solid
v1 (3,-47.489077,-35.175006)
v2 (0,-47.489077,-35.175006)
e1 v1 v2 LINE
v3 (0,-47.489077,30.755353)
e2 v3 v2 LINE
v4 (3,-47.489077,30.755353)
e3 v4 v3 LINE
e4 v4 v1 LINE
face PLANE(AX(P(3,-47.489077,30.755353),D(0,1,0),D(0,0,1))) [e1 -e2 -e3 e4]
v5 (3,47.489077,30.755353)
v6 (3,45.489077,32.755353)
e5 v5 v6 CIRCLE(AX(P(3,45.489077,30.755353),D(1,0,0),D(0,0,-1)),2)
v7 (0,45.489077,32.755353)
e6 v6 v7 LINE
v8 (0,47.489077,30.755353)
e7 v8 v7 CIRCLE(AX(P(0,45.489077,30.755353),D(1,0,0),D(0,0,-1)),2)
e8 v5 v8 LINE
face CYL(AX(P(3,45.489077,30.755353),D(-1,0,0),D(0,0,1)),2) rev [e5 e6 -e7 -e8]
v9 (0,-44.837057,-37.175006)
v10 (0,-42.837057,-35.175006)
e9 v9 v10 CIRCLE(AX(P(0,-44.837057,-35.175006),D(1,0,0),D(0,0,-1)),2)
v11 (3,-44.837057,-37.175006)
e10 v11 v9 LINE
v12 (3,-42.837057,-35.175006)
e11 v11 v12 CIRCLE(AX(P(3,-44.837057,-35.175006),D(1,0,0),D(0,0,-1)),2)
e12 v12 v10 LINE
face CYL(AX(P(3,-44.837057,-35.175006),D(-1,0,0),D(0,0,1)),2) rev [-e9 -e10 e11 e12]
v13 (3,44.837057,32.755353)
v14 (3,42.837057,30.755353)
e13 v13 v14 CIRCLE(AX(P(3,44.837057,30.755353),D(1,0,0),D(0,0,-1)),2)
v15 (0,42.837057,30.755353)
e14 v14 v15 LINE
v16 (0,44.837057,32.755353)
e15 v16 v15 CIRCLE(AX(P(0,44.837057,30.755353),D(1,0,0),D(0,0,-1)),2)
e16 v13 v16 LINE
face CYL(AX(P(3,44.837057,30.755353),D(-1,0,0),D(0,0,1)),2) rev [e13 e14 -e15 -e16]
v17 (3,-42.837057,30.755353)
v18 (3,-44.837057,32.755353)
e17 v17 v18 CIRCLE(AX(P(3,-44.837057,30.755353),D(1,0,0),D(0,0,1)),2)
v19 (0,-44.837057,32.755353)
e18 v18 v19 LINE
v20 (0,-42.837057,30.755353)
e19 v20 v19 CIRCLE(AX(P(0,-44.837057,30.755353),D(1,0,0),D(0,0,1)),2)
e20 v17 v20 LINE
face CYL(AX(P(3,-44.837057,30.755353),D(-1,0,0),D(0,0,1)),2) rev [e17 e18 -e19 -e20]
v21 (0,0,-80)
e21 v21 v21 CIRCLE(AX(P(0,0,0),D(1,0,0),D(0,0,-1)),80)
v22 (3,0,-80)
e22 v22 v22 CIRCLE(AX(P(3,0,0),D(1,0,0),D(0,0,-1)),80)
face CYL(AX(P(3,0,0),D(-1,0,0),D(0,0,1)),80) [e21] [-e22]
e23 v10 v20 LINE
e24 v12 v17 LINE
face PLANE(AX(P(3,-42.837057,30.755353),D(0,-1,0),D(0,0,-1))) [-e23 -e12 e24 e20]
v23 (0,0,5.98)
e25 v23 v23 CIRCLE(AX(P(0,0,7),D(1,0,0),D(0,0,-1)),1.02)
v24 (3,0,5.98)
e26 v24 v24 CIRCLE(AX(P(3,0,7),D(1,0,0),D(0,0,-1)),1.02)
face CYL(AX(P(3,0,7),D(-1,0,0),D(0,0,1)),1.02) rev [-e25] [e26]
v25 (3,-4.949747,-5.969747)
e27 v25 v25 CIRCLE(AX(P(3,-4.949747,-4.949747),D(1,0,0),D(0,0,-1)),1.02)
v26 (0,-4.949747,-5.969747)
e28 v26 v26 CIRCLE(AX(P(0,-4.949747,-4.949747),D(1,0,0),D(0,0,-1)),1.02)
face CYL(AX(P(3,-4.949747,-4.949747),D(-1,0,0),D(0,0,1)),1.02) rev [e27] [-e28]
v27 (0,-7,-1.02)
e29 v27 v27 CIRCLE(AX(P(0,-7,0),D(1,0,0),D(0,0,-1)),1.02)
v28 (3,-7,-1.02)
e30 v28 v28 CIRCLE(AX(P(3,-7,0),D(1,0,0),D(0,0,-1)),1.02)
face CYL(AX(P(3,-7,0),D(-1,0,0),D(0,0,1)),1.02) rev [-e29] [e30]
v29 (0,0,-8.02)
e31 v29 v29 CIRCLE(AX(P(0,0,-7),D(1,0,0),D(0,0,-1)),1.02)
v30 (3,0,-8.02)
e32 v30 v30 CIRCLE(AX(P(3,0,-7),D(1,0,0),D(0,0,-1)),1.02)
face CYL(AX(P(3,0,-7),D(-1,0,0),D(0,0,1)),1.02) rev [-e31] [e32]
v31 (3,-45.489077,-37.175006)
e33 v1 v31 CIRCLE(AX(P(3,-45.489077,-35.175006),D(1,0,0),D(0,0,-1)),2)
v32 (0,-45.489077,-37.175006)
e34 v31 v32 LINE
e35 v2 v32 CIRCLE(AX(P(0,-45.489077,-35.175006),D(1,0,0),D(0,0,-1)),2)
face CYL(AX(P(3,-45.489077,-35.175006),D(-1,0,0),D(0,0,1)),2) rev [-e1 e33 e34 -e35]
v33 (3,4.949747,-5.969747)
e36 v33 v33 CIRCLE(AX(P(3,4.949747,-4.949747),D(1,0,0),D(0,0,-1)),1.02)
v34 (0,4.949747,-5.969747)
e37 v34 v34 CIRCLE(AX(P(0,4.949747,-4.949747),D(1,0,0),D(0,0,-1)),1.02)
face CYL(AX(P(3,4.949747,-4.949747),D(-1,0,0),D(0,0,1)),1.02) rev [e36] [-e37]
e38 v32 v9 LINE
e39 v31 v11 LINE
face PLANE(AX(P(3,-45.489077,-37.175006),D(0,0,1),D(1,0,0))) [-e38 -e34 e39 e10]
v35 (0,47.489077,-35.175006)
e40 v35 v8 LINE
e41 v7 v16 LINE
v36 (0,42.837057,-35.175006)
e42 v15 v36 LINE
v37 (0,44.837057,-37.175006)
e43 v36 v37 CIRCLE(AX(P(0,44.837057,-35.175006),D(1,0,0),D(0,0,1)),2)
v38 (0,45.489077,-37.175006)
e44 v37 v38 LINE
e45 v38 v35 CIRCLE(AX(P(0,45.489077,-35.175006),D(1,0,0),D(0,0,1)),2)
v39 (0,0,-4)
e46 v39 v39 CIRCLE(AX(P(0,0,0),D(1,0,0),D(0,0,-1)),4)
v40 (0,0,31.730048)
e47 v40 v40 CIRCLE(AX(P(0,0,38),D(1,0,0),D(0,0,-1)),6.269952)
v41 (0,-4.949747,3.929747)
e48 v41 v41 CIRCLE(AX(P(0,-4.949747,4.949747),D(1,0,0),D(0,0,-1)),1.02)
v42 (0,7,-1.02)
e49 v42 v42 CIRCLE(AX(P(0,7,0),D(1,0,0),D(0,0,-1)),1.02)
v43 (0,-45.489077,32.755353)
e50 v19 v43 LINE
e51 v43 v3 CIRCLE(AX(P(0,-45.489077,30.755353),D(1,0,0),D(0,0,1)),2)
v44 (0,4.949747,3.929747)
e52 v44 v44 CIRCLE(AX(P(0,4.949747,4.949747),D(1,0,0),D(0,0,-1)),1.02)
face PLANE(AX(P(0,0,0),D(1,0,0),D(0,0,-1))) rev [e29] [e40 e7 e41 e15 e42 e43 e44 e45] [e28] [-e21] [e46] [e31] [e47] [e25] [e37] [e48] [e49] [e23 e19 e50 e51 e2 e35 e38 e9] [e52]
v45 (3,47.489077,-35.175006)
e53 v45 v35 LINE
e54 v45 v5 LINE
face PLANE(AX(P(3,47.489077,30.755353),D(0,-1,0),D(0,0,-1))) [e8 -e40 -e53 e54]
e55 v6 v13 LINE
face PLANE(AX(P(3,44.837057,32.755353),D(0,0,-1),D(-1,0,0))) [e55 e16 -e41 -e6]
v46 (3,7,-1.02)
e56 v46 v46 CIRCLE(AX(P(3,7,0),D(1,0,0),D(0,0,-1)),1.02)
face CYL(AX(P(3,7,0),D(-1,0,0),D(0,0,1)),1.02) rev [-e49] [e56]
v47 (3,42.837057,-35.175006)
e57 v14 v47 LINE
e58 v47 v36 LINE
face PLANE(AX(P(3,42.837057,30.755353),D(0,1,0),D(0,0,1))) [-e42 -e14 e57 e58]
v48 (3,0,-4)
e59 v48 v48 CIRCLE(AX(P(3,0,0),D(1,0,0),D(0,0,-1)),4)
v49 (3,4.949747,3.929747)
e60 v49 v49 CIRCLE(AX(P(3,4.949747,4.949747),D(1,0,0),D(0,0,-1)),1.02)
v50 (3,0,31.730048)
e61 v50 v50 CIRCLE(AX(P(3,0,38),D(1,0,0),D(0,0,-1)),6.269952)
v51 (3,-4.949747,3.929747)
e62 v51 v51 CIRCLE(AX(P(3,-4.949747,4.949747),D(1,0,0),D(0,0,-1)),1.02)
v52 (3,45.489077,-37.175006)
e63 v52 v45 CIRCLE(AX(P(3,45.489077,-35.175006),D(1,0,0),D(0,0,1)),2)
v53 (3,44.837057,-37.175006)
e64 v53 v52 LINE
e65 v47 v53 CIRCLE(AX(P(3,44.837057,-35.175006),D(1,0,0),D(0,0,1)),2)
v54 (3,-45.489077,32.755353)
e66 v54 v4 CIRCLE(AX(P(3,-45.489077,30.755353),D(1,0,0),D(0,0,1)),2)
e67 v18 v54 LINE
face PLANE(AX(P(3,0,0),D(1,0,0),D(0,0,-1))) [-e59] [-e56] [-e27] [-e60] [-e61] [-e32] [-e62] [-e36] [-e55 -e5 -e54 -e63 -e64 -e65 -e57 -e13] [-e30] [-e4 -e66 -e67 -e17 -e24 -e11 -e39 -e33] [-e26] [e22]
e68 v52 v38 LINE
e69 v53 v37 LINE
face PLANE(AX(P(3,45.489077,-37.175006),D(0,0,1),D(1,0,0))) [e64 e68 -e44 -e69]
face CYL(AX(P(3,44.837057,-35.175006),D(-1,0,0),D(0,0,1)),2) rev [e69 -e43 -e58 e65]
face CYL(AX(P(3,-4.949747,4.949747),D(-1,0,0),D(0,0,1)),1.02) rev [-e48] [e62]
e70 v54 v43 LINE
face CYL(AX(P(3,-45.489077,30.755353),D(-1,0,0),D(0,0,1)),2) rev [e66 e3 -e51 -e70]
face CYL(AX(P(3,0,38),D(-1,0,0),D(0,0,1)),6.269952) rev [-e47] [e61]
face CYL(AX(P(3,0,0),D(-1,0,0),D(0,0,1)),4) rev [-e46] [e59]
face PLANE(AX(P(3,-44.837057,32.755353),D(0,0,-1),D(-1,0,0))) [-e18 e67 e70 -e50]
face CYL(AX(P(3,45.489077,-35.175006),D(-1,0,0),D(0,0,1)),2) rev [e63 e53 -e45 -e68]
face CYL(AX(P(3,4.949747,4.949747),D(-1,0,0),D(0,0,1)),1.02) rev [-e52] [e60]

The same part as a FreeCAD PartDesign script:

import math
import FreeCAD as App
import Part
import Sketcher
Q = App.Units.Quantity

doc = App.newDocument("Part")
params = doc.addObject("Spreadsheet::Sheet", "Params")
for row, (alias, value) in enumerate([
    ("sketch1_diameter", "160 mm"),
    ("sketch1_diameter2", "8 mm"),
    ("sketch1_radius", "2 mm"),
    ("sketch1_diameter3", "2.04 mm"),
    ("pad1_length", "3 mm"),
], start=1):
    params.set(f"A{row}", alias)
    params.set(f"B{row}", "=" + value)
    params.setAlias(f"B{row}", alias)

body = doc.addObject("PartDesign::Body", "Body")

sketch1 = body.newObject("Sketcher::SketchObject", "Sketch")
sketch1.AttachmentSupport = (doc.getObject("YZ_Plane"), [""])
sketch1.MapMode = "FlatFace"
sketch1.addGeometry(Part.Circle(App.Vector(0, 0, 0), App.Vector(0, 0, 1), 80), False)
sketch1.addGeometry(Part.Circle(App.Vector(-4.949747, 4.949747, 0), App.Vector(0, 0, 1), 1.02), False)
sketch1.addGeometry(Part.LineSegment(App.Vector(-44.837057, -37.175006, 0), App.Vector(-45.489077, -37.175006, 0)), False)
sketch1.addGeometry(Part.ArcOfCircle(Part.Circle(App.Vector(-45.489077, -35.175006, 0), App.Vector(0, 0, 1), 2), math.radians(180), math.radians(270)), False)
sketch1.addGeometry(Part.LineSegment(App.Vector(-47.489077, -35.175006, 0), App.Vector(-47.489077, 30.755353, 0)), False)
sketch1.addGeometry(Part.ArcOfCircle(Part.Circle(App.Vector(-45.489077, 30.755353, 0), App.Vector(0, 0, 1), 2), math.radians(90), math.radians(180)), False)
sketch1.addGeometry(Part.LineSegment(App.Vector(-45.489077, 32.755353, 0), App.Vector(-44.837057, 32.755353, 0)), False)
sketch1.addGeometry(Part.ArcOfCircle(Part.Circle(App.Vector(-44.837057, 30.755353, 0), App.Vector(0, 0, 1), 2), math.radians(0), math.radians(90)), False)
sketch1.addGeometry(Part.LineSegment(App.Vector(-42.837057, 30.755353, 0), App.Vector(-42.837057, -35.175006, 0)), False)
sketch1.addGeometry(Part.ArcOfCircle(Part.Circle(App.Vector(-44.837057, -35.175006, 0), App.Vector(0, 0, 1), 2), math.radians(-90), math.radians(0)), False)
sketch1.addGeometry(Part.Circle(App.Vector(-7, 0, 0), App.Vector(0, 0, 1), 1.02), False)
sketch1.addGeometry(Part.Circle(App.Vector(-4.949747, -4.949747, 0), App.Vector(0, 0, 1), 1.02), False)
sketch1.addGeometry(Part.Circle(App.Vector(0, 38, 0), App.Vector(0, 0, 1), 6.269952), False)
sketch1.addGeometry(Part.Circle(App.Vector(0, 7, 0), App.Vector(0, 0, 1), 1.02), False)
sketch1.addGeometry(Part.Circle(App.Vector(4.949747, 4.949747, 0), App.Vector(0, 0, 1), 1.02), False)
sketch1.addGeometry(Part.Circle(App.Vector(0, 0, 0), App.Vector(0, 0, 1), 4), False)
sketch1.addGeometry(Part.Circle(App.Vector(4.949747, -4.949747, 0), App.Vector(0, 0, 1), 1.02), False)
sketch1.addGeometry(Part.Circle(App.Vector(7, 0, 0), App.Vector(0, 0, 1), 1.02), False)
sketch1.addGeometry(Part.Circle(App.Vector(0, -7, 0), App.Vector(0, 0, 1), 1.02), False)
sketch1.addGeometry(Part.LineSegment(App.Vector(42.837057, -35.175006, 0), App.Vector(42.837057, 30.755353, 0)), False)
sketch1.addGeometry(Part.ArcOfCircle(Part.Circle(App.Vector(44.837057, 30.755353, 0), App.Vector(0, 0, 1), 2), math.radians(90), math.radians(180)), False)
sketch1.addGeometry(Part.LineSegment(App.Vector(44.837057, 32.755353, 0), App.Vector(45.489077, 32.755353, 0)), False)
sketch1.addGeometry(Part.ArcOfCircle(Part.Circle(App.Vector(45.489077, 30.755353, 0), App.Vector(0, 0, 1), 2), math.radians(0), math.radians(90)), False)
sketch1.addGeometry(Part.LineSegment(App.Vector(47.489077, 30.755353, 0), App.Vector(47.489077, -35.175006, 0)), False)
sketch1.addGeometry(Part.ArcOfCircle(Part.Circle(App.Vector(45.489077, -35.175006, 0), App.Vector(0, 0, 1), 2), math.radians(-90), math.radians(0)), False)
sketch1.addGeometry(Part.LineSegment(App.Vector(45.489077, -37.175006, 0), App.Vector(44.837057, -37.175006, 0)), False)
sketch1.addGeometry(Part.ArcOfCircle(Part.Circle(App.Vector(44.837057, -35.175006, 0), App.Vector(0, 0, 1), 2), math.radians(180), math.radians(270)), False)
sketch1.addConstraint(Sketcher.Constraint("Tangent", 2, 2, 3, 2))
sketch1.addConstraint(Sketcher.Constraint("Tangent", 3, 1, 4, 1))
sketch1.addConstraint(Sketcher.Constraint("Tangent", 4, 2, 5, 2))
sketch1.addConstraint(Sketcher.Constraint("Tangent", 5, 1, 6, 1))
sketch1.addConstraint(Sketcher.Constraint("Tangent", 6, 2, 7, 2))
sketch1.addConstraint(Sketcher.Constraint("Tangent", 7, 1, 8, 1))
sketch1.addConstraint(Sketcher.Constraint("Tangent", 8, 2, 9, 2))
sketch1.addConstraint(Sketcher.Constraint("Tangent", 9, 1, 2, 1))
sketch1.addConstraint(Sketcher.Constraint("Tangent", 19, 2, 20, 2))
sketch1.addConstraint(Sketcher.Constraint("Tangent", 20, 1, 21, 1))
sketch1.addConstraint(Sketcher.Constraint("Tangent", 21, 2, 22, 2))
sketch1.addConstraint(Sketcher.Constraint("Tangent", 22, 1, 23, 1))
sketch1.addConstraint(Sketcher.Constraint("Tangent", 23, 2, 24, 2))
sketch1.addConstraint(Sketcher.Constraint("Tangent", 24, 1, 25, 1))
sketch1.addConstraint(Sketcher.Constraint("Tangent", 25, 2, 26, 2))
sketch1.addConstraint(Sketcher.Constraint("Tangent", 26, 1, 19, 1))
sketch1.addConstraint(Sketcher.Constraint("Horizontal", 2))
sketch1.addConstraint(Sketcher.Constraint("Vertical", 4))
sketch1.addConstraint(Sketcher.Constraint("Horizontal", 6))
sketch1.addConstraint(Sketcher.Constraint("Vertical", 8))
sketch1.addConstraint(Sketcher.Constraint("Vertical", 19))
sketch1.addConstraint(Sketcher.Constraint("Horizontal", 21))
sketch1.addConstraint(Sketcher.Constraint("Vertical", 23))
sketch1.addConstraint(Sketcher.Constraint("Horizontal", 25))
sketch1.addConstraint(Sketcher.Constraint("Coincident", 0, 3, -1, 1))
sketch1.addConstraint(Sketcher.Constraint("Coincident", 15, 3, -1, 1))
sketch1.addConstraint(Sketcher.Constraint("Equal", 3, 5))
sketch1.addConstraint(Sketcher.Constraint("Equal", 5, 7))
sketch1.addConstraint(Sketcher.Constraint("Equal", 7, 9))
sketch1.addConstraint(Sketcher.Constraint("Equal", 1, 10))
sketch1.addConstraint(Sketcher.Constraint("Equal", 10, 11))
sketch1.addConstraint(Sketcher.Constraint("Equal", 11, 13))
sketch1.addConstraint(Sketcher.Constraint("Equal", 13, 14))
sketch1.addConstraint(Sketcher.Constraint("Equal", 14, 16))
sketch1.addConstraint(Sketcher.Constraint("Equal", 16, 17))
sketch1.addConstraint(Sketcher.Constraint("Equal", 17, 18))
sketch1.addConstraint(Sketcher.Constraint("Equal", 9, 20))
sketch1.addConstraint(Sketcher.Constraint("Equal", 20, 22))
sketch1.addConstraint(Sketcher.Constraint("Equal", 22, 24))
sketch1.addConstraint(Sketcher.Constraint("Equal", 24, 26))
sketch1.addConstraint(Sketcher.Constraint("Symmetric", 11, 3, 14, 3, -1, 1))
sketch1.addConstraint(Sketcher.Constraint("Symmetric", 1, 3, 16, 3, -1, 1))
sketch1.addConstraint(Sketcher.Constraint("Symmetric", 10, 3, 17, 3, -1, 1))
sketch1.addConstraint(Sketcher.Constraint("Symmetric", 13, 3, 18, 3, -1, 1))
sketch1.addConstraint(Sketcher.Constraint("Symmetric", 1, 3, 14, 3, -2))
sketch1.addConstraint(Sketcher.Constraint("Symmetric", 7, 3, 20, 3, -2))
sketch1.addConstraint(Sketcher.Constraint("Symmetric", 3, 3, 24, 3, -2))
sketch1.addConstraint(Sketcher.Constraint("PointOnObject", 10, 3, -1))
sketch1.addConstraint(Sketcher.Constraint("PointOnObject", 12, 3, -2))
sketch1.addConstraint(Sketcher.Constraint("PointOnObject", 13, 3, -2))
sketch1.addConstraint(Sketcher.Constraint("Diameter", 0, Q("160 mm")))
sketch1.addConstraint(Sketcher.Constraint("Diameter", 15, Q("8 mm")))
sketch1.addConstraint(Sketcher.Constraint("Radius", 3, Q("2 mm")))
sketch1.addConstraint(Sketcher.Constraint("Diameter", 1, Q("2.04 mm")))
sketch1.addConstraint(Sketcher.Constraint("DistanceX", 10, 3, -1, 1, Q("7 mm")))
sketch1.addConstraint(Sketcher.Constraint("DistanceY", -1, 1, 12, 3, Q("38 mm")))
sketch1.addConstraint(Sketcher.Constraint("DistanceY", -1, 1, 13, 3, Q("7 mm")))
sketch1.addConstraint(Sketcher.Constraint("Diameter", 12, Q("12.539904 mm")))
sketch1.addConstraint(Sketcher.Constraint("DistanceX", 2, 2, 2, 1, Q("0.65202 mm")))
sketch1.addConstraint(Sketcher.Constraint("DistanceY", 4, 1, 4, 2, Q("65.930359 mm")))
sketch1.addConstraint(Sketcher.Constraint("DistanceY", 16, 3, 20, 3, Q("35.705101 mm")))
sketch1.addConstraint(Sketcher.Constraint("DistanceX", 3, 3, 1, 3, Q("40.53933 mm")))
sketch1.addConstraint(Sketcher.Constraint("DistanceX", 1, 3, -1, 1, Q("4.949747 mm")))
sketch1.addConstraint(Sketcher.Constraint("DistanceY", -1, 1, 1, 3, Q("4.949747 mm")))
sketch1.setExpression("Constraints[50]", "Params.sketch1_diameter")
sketch1.setExpression("Constraints[51]", "Params.sketch1_diameter2")
sketch1.setExpression("Constraints[52]", "Params.sketch1_radius")
sketch1.setExpression("Constraints[53]", "Params.sketch1_diameter3")
pad1 = body.newObject("PartDesign::Pad", "Pad")
pad1.Profile = sketch1
pad1.setExpression("Length", "Params.pad1_length")

doc.recompute()
